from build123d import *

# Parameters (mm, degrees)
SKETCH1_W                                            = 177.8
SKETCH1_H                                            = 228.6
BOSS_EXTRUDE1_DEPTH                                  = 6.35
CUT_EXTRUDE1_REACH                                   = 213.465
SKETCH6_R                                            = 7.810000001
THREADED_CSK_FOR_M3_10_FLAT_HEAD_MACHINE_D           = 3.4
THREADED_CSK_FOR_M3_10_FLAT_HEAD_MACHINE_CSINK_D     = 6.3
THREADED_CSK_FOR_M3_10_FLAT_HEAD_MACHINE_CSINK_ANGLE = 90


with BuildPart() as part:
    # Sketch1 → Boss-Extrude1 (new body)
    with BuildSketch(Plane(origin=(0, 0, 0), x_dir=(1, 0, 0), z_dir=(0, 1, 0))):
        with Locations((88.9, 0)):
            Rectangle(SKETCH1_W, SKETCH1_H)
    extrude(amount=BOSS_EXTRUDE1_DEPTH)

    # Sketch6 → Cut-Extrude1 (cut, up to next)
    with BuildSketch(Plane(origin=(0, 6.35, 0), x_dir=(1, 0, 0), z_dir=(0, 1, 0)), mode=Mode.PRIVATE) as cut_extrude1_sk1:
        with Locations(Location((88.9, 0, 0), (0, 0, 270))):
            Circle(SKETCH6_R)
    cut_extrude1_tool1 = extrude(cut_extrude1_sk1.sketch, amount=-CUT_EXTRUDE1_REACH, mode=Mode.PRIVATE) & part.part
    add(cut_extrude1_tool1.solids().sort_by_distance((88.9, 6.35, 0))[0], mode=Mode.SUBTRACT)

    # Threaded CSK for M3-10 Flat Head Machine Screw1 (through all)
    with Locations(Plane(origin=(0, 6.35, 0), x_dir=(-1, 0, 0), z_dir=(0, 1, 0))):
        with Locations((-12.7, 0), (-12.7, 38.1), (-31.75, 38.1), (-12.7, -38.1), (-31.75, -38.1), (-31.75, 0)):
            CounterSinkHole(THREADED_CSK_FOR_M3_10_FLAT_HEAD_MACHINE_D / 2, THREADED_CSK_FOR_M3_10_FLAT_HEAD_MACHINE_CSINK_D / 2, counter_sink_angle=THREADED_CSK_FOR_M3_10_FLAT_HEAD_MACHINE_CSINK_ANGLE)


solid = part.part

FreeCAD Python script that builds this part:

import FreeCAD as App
import Part
import Sketcher
Q = App.Units.Quantity

doc = App.newDocument("Part")
params = doc.addObject("Spreadsheet::Sheet", "Params")
for row, (alias, value) in enumerate([
    ("sketch1_width", "7 in"),
    ("sketch1_height", "9 in"),
    ("pad1_length", "0.25 in"),
    ("hole_diameter", "3.4 mm"),
    ("hole_csink_diameter", "6.3 mm"),
], start=1):
    params.set(f"A{row}", alias)
    params.set(f"B{row}", "=" + value)
    params.setAlias(f"B{row}", alias)

body = doc.addObject("PartDesign::Body", "Body")

sketch1 = body.newObject("Sketcher::SketchObject", "Sketch")
sketch1.AttachmentSupport = (doc.getObject("XZ_Plane"), [""])
sketch1.MapMode = "FlatFace"
sketch1.addGeometry(Part.LineSegment(App.Vector(0, -114, 0), App.Vector(0, 114, 0)), False)
sketch1.addGeometry(Part.LineSegment(App.Vector(0, 114, 0), App.Vector(178, 114, 0)), False)
sketch1.addGeometry(Part.LineSegment(App.Vector(178, 114, 0), App.Vector(178, -114, 0)), False)
sketch1.addGeometry(Part.LineSegment(App.Vector(178, -114, 0), App.Vector(0, -114, 0)), False)
sketch1.addConstraint(Sketcher.Constraint("Coincident", 0, 2, 1, 1))
sketch1.addConstraint(Sketcher.Constraint("Coincident", 1, 2, 2, 1))
sketch1.addConstraint(Sketcher.Constraint("Coincident", 2, 2, 3, 1))
sketch1.addConstraint(Sketcher.Constraint("Coincident", 3, 2, 0, 1))
sketch1.addConstraint(Sketcher.Constraint("Vertical", 0))
sketch1.addConstraint(Sketcher.Constraint("Horizontal", 1))
sketch1.addConstraint(Sketcher.Constraint("Vertical", 2))
sketch1.addConstraint(Sketcher.Constraint("Horizontal", 3))
sketch1.addConstraint(Sketcher.Constraint("Symmetric", 0, 2, 3, 2, -1, 1))
sketch1.addConstraint(Sketcher.Constraint("DistanceX", 1, 1, 1, 2, Q("7 in")))
sketch1.addConstraint(Sketcher.Constraint("DistanceY", 0, 1, 0, 2, Q("9 in")))
sketch1.setExpression("Constraints[9]", "Params.sketch1_width")
sketch1.setExpression("Constraints[10]", "Params.sketch1_height")
pad1 = body.newObject("PartDesign::Pad", "Pad")
pad1.Profile = sketch1
pad1.setExpression("Length", "Params.pad1_length")
pad1.Reversed = True

sketch2 = body.newObject("Sketcher::SketchObject", "Sketch001")
sketch2.AttachmentSupport = (doc.getObject("XZ_Plane"), [""])
sketch2.MapMode = "FlatFace"
sketch2.AttachmentOffset = App.Placement(App.Vector(0, 0, -0.25 * 25.4), App.Rotation())
sketch2.addGeometry(Part.Circle(App.Vector(89, 0, 0), App.Vector(0, 0, 1), 8), False)
sketch2.addConstraint(Sketcher.Constraint("PointOnObject", 0, 3, -1))
sketch2.addConstraint(Sketcher.Constraint("DistanceX", -1, 1, 0, 3, Q("3.5 in")))
sketch2.addConstraint(Sketcher.Constraint("Diameter", 0, 15.62))
pocket1 = body.newObject("PartDesign::Pocket", "Pocket")
pocket1.Profile = sketch2
pocket1.Type = "UpToFirst"
pocket1.Reversed = True

sketch3 = body.newObject("Sketcher::SketchObject", "Sketch002")
sketch3.AttachmentSupport = (doc.getObject("XZ_Plane"), [""])
sketch3.MapMode = "FlatFace"
sketch3.AttachmentOffset = App.Placement(App.Vector(0, 0, -0.25 * 25.4), App.Rotation())
sketch3.addGeometry(Part.Circle(App.Vector(12.7, 0, 0), App.Vector(0, 0, 1), 1.7), False)
sketch3.addGeometry(Part.Circle(App.Vector(12.7, 38.1, 0), App.Vector(0, 0, 1), 1.7), False)
sketch3.addGeometry(Part.Circle(App.Vector(31.8, 38.1, 0), App.Vector(0, 0, 1), 1.7), False)
sketch3.addGeometry(Part.Circle(App.Vector(12.7, -38.1, 0), App.Vector(0, 0, 1), 1.7), False)
sketch3.addGeometry(Part.Circle(App.Vector(31.8, -38.1, 0), App.Vector(0, 0, 1), 1.7), False)
sketch3.addGeometry(Part.Circle(App.Vector(31.8, 0, 0), App.Vector(0, 0, 1), 1.7), False)
sketch3.addConstraint(Sketcher.Constraint("Equal", 0, 1))
sketch3.addConstraint(Sketcher.Constraint("Equal", 1, 2))
sketch3.addConstraint(Sketcher.Constraint("Equal", 2, 3))
sketch3.addConstraint(Sketcher.Constraint("Equal", 3, 4))
sketch3.addConstraint(Sketcher.Constraint("Equal", 4, 5))
sketch3.addConstraint(Sketcher.Constraint("Symmetric", 1, 3, 3, 3, -1))
sketch3.addConstraint(Sketcher.Constraint("Symmetric", 2, 3, 4, 3, -1))
sketch3.addConstraint(Sketcher.Constraint("PointOnObject", 0, 3, -1))
sketch3.addConstraint(Sketcher.Constraint("PointOnObject", 5, 3, -1))
sketch3.addConstraint(Sketcher.Constraint("Horizontal", 1, 3, 2, 3))
sketch3.addConstraint(Sketcher.Constraint("Vertical", 0, 3, 1, 3))
sketch3.addConstraint(Sketcher.Constraint("Vertical", 4, 3, 5, 3))
sketch3.addConstraint(Sketcher.Constraint("DistanceY", 3, 3, 1, 3, Q("3 in")))
sketch3.addConstraint(Sketcher.Constraint("DistanceX", -1, 1, 0, 3, Q("0.5 in")))
sketch3.addConstraint(Sketcher.Constraint("Diameter", 0, 3.4))
sketch3.addConstraint(Sketcher.Constraint("DistanceX", -1, 1, 2, 3, Q("1.25 in")))
doc.recompute()
hole = body.newObject("PartDesign::Hole", "Hole")
hole.Profile = sketch3
hole.ThreadType = "None"
hole.setExpression("Diameter", "Params.hole_diameter")
hole.DepthType = "ThroughAll"
hole.HoleCutType = "Countersink"
hole.setExpression("HoleCutDiameter", "Params.hole_csink_diameter")
hole.HoleCutCountersinkAngle = 90
hole.Reversed = True

doc.recompute()
